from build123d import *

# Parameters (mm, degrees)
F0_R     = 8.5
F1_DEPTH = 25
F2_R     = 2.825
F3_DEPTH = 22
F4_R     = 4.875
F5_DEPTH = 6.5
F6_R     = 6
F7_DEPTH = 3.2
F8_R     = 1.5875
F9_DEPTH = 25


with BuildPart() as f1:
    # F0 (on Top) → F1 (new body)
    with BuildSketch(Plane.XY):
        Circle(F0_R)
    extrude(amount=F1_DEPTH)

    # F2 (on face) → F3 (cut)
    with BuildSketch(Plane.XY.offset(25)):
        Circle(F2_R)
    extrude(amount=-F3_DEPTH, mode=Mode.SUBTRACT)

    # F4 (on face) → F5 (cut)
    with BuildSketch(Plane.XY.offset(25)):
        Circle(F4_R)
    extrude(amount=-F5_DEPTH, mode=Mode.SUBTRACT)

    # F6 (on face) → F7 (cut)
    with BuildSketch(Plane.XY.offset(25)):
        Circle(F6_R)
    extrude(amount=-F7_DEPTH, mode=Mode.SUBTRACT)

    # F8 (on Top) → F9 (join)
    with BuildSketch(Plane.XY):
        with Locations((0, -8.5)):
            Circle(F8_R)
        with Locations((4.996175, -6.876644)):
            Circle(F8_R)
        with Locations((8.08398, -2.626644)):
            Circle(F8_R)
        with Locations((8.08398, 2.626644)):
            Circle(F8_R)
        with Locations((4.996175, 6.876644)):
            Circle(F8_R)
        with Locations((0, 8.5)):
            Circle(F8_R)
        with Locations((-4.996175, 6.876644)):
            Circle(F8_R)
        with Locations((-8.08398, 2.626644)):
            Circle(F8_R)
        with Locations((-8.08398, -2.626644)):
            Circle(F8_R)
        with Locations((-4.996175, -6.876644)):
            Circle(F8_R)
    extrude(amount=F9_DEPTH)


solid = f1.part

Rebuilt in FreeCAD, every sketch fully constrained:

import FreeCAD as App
import Part
import Sketcher
Q = App.Units.Quantity

doc = App.newDocument("Part")
body = doc.addObject("PartDesign::Body", "Body")

sketch1 = body.newObject("Sketcher::SketchObject", "Sketch")
sketch1.AttachmentSupport = (doc.getObject("XY_Plane"), [""])
sketch1.MapMode = "FlatFace"
sketch1.addGeometry(Part.Circle(App.Vector(0, 0, 0), App.Vector(0, 0, 1), 8), False)
sketch1.addConstraint(Sketcher.Constraint("Coincident", 0, 3, -1, 1))
sketch1.addConstraint(Sketcher.Constraint("Diameter", 0, Q("17 mm")))
pad1 = body.newObject("PartDesign::Pad", "Pad")
pad1.Profile = sketch1
pad1.Length = 25

sketch2 = body.newObject("Sketcher::SketchObject", "Sketch001")
sketch2.AttachmentSupport = (doc.getObject("XY_Plane"), [""])
sketch2.MapMode = "FlatFace"
sketch2.AttachmentOffset = App.Placement(App.Vector(0, 0, 25), App.Rotation())
sketch2.addGeometry(Part.Circle(App.Vector(0, 0, 0), App.Vector(0, 0, 1), 2.8), False)
sketch2.addConstraint(Sketcher.Constraint("Coincident", 0, 3, -1, 1))
sketch2.addConstraint(Sketcher.Constraint("Diameter", 0, Q("5.65 mm")))
pocket1 = body.newObject("PartDesign::Pocket", "Pocket")
pocket1.Profile = sketch2
pocket1.Length = 22

sketch3 = body.newObject("Sketcher::SketchObject", "Sketch002")
sketch3.AttachmentSupport = (doc.getObject("XY_Plane"), [""])
sketch3.MapMode = "FlatFace"
sketch3.AttachmentOffset = App.Placement(App.Vector(0, 0, 25), App.Rotation())
sketch3.addGeometry(Part.Circle(App.Vector(0, 0, 0), App.Vector(0, 0, 1), 4.9), False)
sketch3.addConstraint(Sketcher.Constraint("Coincident", 0, 3, -1, 1))
sketch3.addConstraint(Sketcher.Constraint("Diameter", 0, Q("9.75 mm")))
pocket2 = body.newObject("PartDesign::Pocket", "Pocket001")
pocket2.Profile = sketch3
pocket2.Length = 6.5

sketch4 = body.newObject("Sketcher::SketchObject", "Sketch003")
sketch4.AttachmentSupport = (doc.getObject("XY_Plane"), [""])
sketch4.MapMode = "FlatFace"
sketch4.AttachmentOffset = App.Placement(App.Vector(0, 0, 25), App.Rotation())
sketch4.addGeometry(Part.Circle(App.Vector(0, 0, 0), App.Vector(0, 0, 1), 6), False)
sketch4.addConstraint(Sketcher.Constraint("Coincident", 0, 3, -1, 1))
sketch4.addConstraint(Sketcher.Constraint("Diameter", 0, Q("12 mm")))
pocket3 = body.newObject("PartDesign::Pocket", "Pocket002")
pocket3.Profile = sketch4
pocket3.Length = 3.2

sketch5 = body.newObject("Sketcher::SketchObject", "Sketch004")
sketch5.AttachmentSupport = (doc.getObject("XY_Plane"), [""])
sketch5.MapMode = "FlatFace"
sketch5.addGeometry(Part.Circle(App.Vector(0, -8.5, 0), App.Vector(0, 0, 1), 1.6), False)
sketch5.addGeometry(Part.Circle(App.Vector(5, -6.9, 0), App.Vector(0, 0, 1), 1.6), False)
sketch5.addGeometry(Part.Circle(App.Vector(8.1, -2.6, 0), App.Vector(0, 0, 1), 1.6), False)
sketch5.addGeometry(Part.Circle(App.Vector(8.1, 2.6, 0), App.Vector(0, 0, 1), 1.6), False)
sketch5.addGeometry(Part.Circle(App.Vector(5, 6.9, 0), App.Vector(0, 0, 1), 1.6), False)
sketch5.addGeometry(Part.Circle(App.Vector(0, 8.5, 0), App.Vector(0, 0, 1), 1.6), False)
sketch5.addGeometry(Part.Circle(App.Vector(-5, 6.9, 0), App.Vector(0, 0, 1), 1.6), False)
sketch5.addGeometry(Part.Circle(App.Vector(-8.1, 2.6, 0), App.Vector(0, 0, 1), 1.6), False)
sketch5.addGeometry(Part.Circle(App.Vector(-8.1, -2.6, 0), App.Vector(0, 0, 1), 1.6), False)
sketch5.addGeometry(Part.Circle(App.Vector(-5, -6.9, 0), App.Vector(0, 0, 1), 1.6), False)
sketch5.addConstraint(Sketcher.Constraint("Equal", 0, 1))
sketch5.addConstraint(Sketcher.Constraint("Equal", 1, 2))
sketch5.addConstraint(Sketcher.Constraint("Equal", 2, 3))
sketch5.addConstraint(Sketcher.Constraint("Equal", 3, 4))
sketch5.addConstraint(Sketcher.Constraint("Equal", 4, 5))
sketch5.addConstraint(Sketcher.Constraint("Equal", 5, 6))
sketch5.addConstraint(Sketcher.Constraint("Equal", 6, 7))
sketch5.addConstraint(Sketcher.Constraint("Equal", 7, 8))
sketch5.addConstraint(Sketcher.Constraint("Equal", 8, 9))
sketch5.addConstraint(Sketcher.Constraint("Symmetric", 0, 3, 5, 3, -1, 1))
sketch5.addConstraint(Sketcher.Constraint("Symmetric", 1, 3, 6, 3, -1, 1))
sketch5.addConstraint(Sketcher.Constraint("Symmetric", 2, 3, 7, 3, -1, 1))
sketch5.addConstraint(Sketcher.Constraint("Symmetric", 3, 3, 8, 3, -1, 1))
sketch5.addConstraint(Sketcher.Constraint("Symmetric", 4, 3, 9, 3, -1, 1))
sketch5.addConstraint(Sketcher.Constraint("Symmetric", 4, 3, 6, 3, -2))
sketch5.addConstraint(Sketcher.Constraint("Symmetric", 3, 3, 7, 3, -2))
sketch5.addConstraint(Sketcher.Constraint("PointOnObject", 0, 3, -2))
sketch5.addConstraint(Sketcher.Constraint("Diameter", 0, Q("3.175 mm")))
sketch5.addConstraint(Sketcher.Constraint("DistanceY", 0, 3, 5, 3, Q("17 mm")))
sketch5.addConstraint(Sketcher.Constraint("DistanceY", 1, 3, 2, 3, Q("4.25 mm")))
sketch5.addConstraint(Sketcher.Constraint("DistanceX", -1, 1, 2, 3, Q("8.08398 mm")))
sketch5.addConstraint(Sketcher.Constraint("DistanceY", 2, 3, 3, 3, Q("5.253288 mm")))
sketch5.addConstraint(Sketcher.Constraint("DistanceX", 6, 3, 4, 3, Q("9.99235 mm")))
pad2 = body.newObject("PartDesign::Pad", "Pad001")
pad2.Profile = sketch5
pad2.Length = 25

doc.recompute()
